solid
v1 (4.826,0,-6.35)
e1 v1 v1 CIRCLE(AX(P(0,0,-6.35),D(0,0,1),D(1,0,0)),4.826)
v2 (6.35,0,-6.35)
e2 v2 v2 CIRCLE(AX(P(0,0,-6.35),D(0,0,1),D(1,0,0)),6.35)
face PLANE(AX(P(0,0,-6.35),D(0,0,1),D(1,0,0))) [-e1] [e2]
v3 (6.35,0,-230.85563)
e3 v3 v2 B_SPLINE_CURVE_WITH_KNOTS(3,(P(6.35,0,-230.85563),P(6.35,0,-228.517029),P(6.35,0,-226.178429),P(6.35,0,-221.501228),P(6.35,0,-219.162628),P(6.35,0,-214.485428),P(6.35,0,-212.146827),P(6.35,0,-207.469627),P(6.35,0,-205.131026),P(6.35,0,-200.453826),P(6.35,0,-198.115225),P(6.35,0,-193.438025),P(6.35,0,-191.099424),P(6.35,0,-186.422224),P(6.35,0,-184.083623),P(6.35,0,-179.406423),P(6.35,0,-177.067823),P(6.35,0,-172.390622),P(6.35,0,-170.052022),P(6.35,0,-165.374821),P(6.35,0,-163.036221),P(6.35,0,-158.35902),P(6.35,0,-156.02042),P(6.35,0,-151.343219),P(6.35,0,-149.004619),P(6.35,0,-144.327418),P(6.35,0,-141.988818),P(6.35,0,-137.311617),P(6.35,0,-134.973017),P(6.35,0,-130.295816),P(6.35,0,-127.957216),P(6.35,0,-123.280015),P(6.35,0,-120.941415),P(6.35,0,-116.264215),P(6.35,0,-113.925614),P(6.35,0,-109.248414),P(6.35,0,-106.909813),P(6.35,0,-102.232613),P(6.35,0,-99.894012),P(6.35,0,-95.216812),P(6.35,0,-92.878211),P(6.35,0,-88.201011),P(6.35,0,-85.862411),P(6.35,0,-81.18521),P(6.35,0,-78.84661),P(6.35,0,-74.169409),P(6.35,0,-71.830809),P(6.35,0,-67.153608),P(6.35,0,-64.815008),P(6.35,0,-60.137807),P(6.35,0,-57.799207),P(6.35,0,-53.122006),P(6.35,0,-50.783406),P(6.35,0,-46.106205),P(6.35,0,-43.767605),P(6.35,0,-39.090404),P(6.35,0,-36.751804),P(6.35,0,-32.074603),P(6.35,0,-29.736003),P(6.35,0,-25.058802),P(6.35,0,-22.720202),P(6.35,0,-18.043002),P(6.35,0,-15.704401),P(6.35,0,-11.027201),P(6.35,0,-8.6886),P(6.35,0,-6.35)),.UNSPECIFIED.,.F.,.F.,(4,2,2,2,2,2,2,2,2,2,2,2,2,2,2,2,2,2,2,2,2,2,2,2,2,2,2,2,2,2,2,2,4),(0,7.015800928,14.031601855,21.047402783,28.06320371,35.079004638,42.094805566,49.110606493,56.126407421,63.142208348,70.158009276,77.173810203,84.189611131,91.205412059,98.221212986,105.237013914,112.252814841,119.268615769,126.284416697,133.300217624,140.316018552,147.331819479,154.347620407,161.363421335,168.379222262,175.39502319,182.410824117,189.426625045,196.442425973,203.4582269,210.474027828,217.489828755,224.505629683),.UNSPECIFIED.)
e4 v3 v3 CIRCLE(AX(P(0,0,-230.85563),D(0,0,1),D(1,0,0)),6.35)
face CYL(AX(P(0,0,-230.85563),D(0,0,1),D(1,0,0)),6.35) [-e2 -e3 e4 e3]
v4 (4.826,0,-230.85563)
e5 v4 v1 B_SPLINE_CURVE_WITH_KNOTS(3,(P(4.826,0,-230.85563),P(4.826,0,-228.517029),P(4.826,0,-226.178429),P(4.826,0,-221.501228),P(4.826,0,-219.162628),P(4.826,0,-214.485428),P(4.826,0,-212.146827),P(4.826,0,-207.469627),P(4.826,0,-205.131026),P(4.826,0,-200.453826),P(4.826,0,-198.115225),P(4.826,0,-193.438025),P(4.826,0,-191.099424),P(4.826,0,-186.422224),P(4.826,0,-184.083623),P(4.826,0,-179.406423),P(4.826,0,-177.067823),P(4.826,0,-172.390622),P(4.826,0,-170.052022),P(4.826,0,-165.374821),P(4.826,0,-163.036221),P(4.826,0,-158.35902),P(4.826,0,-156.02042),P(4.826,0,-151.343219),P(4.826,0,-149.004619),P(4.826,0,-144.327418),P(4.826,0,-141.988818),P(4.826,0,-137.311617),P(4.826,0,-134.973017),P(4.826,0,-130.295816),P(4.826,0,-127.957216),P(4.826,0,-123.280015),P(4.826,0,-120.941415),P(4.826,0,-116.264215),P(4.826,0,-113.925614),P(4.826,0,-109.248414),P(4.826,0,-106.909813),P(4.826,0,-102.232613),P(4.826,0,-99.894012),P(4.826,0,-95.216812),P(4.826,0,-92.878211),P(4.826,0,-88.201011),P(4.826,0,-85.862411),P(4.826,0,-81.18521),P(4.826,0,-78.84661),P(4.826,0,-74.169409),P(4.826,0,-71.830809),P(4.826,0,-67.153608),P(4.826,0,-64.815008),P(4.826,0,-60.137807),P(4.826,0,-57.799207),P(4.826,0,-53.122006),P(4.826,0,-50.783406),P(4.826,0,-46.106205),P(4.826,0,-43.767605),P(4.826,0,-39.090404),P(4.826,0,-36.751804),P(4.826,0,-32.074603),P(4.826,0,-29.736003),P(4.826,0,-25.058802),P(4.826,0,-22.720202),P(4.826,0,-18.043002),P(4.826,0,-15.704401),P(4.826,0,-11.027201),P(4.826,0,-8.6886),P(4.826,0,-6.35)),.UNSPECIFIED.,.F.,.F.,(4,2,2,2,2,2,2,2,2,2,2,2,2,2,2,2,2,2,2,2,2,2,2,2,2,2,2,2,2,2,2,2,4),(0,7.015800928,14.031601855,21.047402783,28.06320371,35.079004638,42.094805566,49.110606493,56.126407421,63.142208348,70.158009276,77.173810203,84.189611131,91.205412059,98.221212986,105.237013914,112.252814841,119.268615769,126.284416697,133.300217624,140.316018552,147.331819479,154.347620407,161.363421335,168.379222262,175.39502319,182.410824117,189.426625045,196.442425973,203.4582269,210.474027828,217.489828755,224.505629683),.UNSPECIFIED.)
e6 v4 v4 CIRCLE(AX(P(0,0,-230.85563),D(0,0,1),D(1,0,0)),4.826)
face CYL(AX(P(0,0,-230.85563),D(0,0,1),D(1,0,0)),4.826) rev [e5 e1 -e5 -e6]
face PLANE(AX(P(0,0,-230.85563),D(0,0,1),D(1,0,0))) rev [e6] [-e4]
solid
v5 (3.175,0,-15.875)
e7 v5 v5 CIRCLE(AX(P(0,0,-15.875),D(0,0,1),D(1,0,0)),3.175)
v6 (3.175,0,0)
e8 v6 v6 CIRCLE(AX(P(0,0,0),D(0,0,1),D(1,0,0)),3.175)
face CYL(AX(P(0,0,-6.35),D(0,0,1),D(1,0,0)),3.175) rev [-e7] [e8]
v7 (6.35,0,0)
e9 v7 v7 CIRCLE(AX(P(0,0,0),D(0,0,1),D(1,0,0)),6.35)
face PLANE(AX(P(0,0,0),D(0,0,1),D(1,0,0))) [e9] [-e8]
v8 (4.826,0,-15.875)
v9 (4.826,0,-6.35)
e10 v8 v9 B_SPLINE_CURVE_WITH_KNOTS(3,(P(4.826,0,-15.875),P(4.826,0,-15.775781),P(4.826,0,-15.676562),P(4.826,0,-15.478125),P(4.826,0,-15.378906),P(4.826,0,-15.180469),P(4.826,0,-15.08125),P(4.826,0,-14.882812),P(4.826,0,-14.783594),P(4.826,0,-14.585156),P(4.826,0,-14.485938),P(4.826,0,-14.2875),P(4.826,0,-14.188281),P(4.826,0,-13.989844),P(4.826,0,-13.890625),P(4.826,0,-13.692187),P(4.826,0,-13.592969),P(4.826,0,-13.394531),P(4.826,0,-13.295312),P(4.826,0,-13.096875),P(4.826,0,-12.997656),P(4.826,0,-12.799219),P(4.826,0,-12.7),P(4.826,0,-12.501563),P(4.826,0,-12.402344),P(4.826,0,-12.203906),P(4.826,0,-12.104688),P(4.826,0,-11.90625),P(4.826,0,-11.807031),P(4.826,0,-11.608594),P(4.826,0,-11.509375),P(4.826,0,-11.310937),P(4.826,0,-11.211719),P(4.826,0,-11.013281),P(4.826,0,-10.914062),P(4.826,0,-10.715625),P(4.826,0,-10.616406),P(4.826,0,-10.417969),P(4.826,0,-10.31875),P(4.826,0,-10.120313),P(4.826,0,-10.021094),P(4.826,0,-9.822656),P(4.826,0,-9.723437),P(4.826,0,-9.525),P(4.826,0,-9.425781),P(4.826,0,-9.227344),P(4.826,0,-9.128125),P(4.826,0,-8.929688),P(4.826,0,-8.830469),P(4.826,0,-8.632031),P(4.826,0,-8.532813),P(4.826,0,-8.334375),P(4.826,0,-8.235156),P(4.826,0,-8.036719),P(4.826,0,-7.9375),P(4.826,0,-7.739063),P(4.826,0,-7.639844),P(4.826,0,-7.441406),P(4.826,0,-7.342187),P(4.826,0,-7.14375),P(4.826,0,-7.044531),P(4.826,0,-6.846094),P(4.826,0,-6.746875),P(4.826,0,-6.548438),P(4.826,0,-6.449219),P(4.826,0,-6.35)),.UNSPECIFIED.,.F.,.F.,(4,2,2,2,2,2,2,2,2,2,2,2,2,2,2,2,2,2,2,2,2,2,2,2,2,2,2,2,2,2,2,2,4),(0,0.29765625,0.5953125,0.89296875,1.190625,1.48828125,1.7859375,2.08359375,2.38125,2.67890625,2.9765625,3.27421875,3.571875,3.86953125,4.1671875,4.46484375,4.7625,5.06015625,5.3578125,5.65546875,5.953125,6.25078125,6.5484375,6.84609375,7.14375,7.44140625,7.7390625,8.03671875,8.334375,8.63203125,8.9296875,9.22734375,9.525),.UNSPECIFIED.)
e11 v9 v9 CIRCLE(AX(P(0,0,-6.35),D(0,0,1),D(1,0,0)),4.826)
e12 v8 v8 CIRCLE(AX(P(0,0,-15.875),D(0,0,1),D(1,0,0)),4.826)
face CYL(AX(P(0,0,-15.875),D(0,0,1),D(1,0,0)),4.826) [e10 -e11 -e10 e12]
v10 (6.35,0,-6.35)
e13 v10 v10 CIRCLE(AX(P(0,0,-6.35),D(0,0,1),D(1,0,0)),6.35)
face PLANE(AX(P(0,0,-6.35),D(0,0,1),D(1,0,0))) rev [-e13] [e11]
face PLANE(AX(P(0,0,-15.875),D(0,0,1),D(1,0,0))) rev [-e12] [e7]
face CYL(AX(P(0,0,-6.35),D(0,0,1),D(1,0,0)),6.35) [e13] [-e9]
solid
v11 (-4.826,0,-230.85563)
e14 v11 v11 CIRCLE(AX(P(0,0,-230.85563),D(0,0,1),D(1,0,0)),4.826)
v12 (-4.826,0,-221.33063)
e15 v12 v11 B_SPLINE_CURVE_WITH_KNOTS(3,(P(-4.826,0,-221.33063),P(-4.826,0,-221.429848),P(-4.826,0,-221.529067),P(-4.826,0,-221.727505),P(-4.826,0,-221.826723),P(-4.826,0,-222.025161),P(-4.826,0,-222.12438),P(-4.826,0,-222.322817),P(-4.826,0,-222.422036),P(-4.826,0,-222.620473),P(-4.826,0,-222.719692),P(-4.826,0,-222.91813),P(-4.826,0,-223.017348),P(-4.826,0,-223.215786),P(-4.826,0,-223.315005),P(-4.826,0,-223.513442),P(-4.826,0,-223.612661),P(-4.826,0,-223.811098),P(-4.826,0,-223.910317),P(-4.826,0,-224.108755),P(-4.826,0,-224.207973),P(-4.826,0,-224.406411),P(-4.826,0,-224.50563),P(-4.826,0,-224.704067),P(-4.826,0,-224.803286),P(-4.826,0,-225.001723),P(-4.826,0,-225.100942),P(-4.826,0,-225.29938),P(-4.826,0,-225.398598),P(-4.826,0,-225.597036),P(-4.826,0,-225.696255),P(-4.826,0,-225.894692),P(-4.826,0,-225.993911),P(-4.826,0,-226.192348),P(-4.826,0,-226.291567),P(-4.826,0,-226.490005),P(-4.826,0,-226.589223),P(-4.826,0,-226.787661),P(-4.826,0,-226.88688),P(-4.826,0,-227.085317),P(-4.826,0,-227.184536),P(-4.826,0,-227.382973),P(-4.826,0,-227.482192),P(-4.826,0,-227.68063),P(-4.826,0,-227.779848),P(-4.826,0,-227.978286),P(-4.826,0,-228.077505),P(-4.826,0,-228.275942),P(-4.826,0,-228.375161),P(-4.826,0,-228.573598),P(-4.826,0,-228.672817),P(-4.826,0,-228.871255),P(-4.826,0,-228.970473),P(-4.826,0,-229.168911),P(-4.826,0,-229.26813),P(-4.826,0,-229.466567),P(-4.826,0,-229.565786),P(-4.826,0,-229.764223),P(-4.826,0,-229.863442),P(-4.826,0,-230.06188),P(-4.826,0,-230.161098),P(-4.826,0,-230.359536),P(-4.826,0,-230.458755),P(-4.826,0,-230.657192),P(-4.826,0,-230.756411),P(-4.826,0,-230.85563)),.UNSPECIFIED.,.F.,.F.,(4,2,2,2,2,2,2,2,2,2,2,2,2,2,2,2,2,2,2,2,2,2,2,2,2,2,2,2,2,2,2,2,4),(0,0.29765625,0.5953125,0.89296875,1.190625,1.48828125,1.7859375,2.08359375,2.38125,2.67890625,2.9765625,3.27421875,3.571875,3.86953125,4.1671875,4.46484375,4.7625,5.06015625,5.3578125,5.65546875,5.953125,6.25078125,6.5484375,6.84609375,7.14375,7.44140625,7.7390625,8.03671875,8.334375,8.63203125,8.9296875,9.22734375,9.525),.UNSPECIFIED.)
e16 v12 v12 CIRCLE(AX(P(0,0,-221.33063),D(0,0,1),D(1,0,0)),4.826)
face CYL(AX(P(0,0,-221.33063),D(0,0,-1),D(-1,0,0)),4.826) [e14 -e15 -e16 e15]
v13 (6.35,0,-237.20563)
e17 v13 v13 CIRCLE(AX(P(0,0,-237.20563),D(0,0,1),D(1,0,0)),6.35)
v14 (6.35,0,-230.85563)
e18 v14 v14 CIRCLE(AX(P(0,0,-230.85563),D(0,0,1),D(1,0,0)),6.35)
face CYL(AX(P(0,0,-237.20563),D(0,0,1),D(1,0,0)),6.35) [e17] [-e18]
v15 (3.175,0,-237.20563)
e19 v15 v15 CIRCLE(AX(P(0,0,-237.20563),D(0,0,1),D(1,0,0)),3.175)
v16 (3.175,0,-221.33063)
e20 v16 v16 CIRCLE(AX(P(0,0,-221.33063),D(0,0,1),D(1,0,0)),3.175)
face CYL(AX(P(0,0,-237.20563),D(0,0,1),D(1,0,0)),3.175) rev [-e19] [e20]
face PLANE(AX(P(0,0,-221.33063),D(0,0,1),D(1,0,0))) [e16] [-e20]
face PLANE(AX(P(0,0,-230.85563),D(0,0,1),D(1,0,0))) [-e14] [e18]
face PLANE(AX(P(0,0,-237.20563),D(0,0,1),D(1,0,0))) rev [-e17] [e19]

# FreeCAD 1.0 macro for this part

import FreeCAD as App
import Part
import Sketcher
Q = App.Units.Quantity

doc = App.newDocument("Part")
body = doc.addObject("PartDesign::Body", "Body")

sketch1 = doc.addObject("Sketcher::SketchObject", "Sketch")
body.addObject(sketch1)
sketch1.AttachmentSupport = (doc.XY_Plane, [""])
sketch1.MapMode = "FlatFace"
sketch1.addGeometry(Part.Circle(App.Vector(0, 0, 0), App.Vector(0, 0, 1), 6.3), False)
sketch1.addGeometry(Part.Circle(App.Vector(0, 0, 0), App.Vector(0, 0, 1), 3.2), False)
sketch1.addConstraint(Sketcher.Constraint("Coincident", 0, 3, -1, 1))
sketch1.addConstraint(Sketcher.Constraint("Coincident", 1, 3, -1, 1))
sketch1.addConstraint(Sketcher.Constraint("Diameter", 0, Q("0.5 in")))
sketch1.addConstraint(Sketcher.Constraint("Diameter", 1, Q("0.25 in")))
pad1 = doc.addObject("PartDesign::Pad", "Pad")
body.addObject(pad1)
pad1.Profile = sketch1
pad1.Length = Q("0.25 in")
pad1.Reversed = True

sketch2 = doc.addObject("Sketcher::SketchObject", "Sketch001")
body.addObject(sketch2)
sketch2.AttachmentSupport = (doc.XY_Plane, [""])
sketch2.MapMode = "FlatFace"
sketch2.AttachmentOffset = App.Placement(App.Vector(0, 0, -0.25 * 25.4), App.Rotation())
sketch2.addGeometry(Part.Circle(App.Vector(0, 0, 0), App.Vector(0, 0, 1), 4.8), False)
sketch2.addGeometry(Part.Circle(App.Vector(0, 0, 0), App.Vector(0, 0, 1), 3.2), False)
sketch2.addConstraint(Sketcher.Constraint("Coincident", 0, 3, -1, 1))
sketch2.addConstraint(Sketcher.Constraint("Coincident", 1, 3, -1, 1))
sketch2.addConstraint(Sketcher.Constraint("Diameter", 0, Q("0.38 in")))
sketch2.addConstraint(Sketcher.Constraint("Diameter", 1, Q("0.25 in")))
pad2 = doc.addObject("PartDesign::Pad", "Pad001")
body.addObject(pad2)
pad2.Profile = sketch2
pad2.Length = Q("0.375 in")
pad2.Reversed = True
body2 = doc.addObject("PartDesign::Body", "Body001")

sketch3 = doc.addObject("Sketcher::SketchObject", "Sketch002")
body2.addObject(sketch3)
sketch3.AttachmentSupport = (doc.getObject("XY_Plane001"), [""])
sketch3.MapMode = "FlatFace"
sketch3.AttachmentOffset = App.Placement(App.Vector(0, 0, -0.25 * 25.4), App.Rotation())
sketch3.addGeometry(Part.Circle(App.Vector(0, 0, 0), App.Vector(0, 0, 1), 6.3), False)
sketch3.addGeometry(Part.Circle(App.Vector(0, 0, 0), App.Vector(0, 0, 1), 4.8), False)
sketch3.addConstraint(Sketcher.Constraint("Coincident", 0, 3, -1, 1))
sketch3.addConstraint(Sketcher.Constraint("Coincident", 1, 3, -1, 1))
sketch3.addConstraint(Sketcher.Constraint("Diameter", 0, Q("0.5 in")))
sketch3.addConstraint(Sketcher.Constraint("Diameter", 1, Q("0.38 in")))
pad3 = doc.addObject("PartDesign::Pad", "Pad002")
body2.addObject(pad3)
pad3.Profile = sketch3
pad3.Length = 224.50563
pad3.Reversed = True
body3 = doc.addObject("PartDesign::Body", "Body002")

sketch4 = doc.addObject("Sketcher::SketchObject", "Sketch003")
body3.addObject(sketch4)
sketch4.AttachmentSupport = (doc.getObject("XY_Plane002"), [""])
sketch4.MapMode = "FlatFace"
sketch4.AttachmentOffset = App.Placement(App.Vector(0, 0, -230.85563), App.Rotation())
sketch4.addGeometry(Part.Circle(App.Vector(0, 0, 0), App.Vector(0, 0, 1), 4.8), False)
sketch4.addGeometry(Part.Circle(App.Vector(0, 0, 0), App.Vector(0, 0, 1), 3.2), False)
sketch4.addConstraint(Sketcher.Constraint("Coincident", 0, 3, -1, 1))
sketch4.addConstraint(Sketcher.Constraint("Coincident", 1, 3, -1, 1))
sketch4.addConstraint(Sketcher.Constraint("Diameter", 0, Q("0.38 in")))
sketch4.addConstraint(Sketcher.Constraint("Diameter", 1, Q("0.25 in")))
pad4 = doc.addObject("PartDesign::Pad", "Pad003")
body3.addObject(pad4)
pad4.Profile = sketch4
pad4.Length = Q("0.375 in")
body4 = doc.addObject("PartDesign::Body", "Body003")

sketch5 = doc.addObject("Sketcher::SketchObject", "Sketch004")
body4.addObject(sketch5)
sketch5.AttachmentSupport = (doc.getObject("XY_Plane003"), [""])
sketch5.MapMode = "FlatFace"
sketch5.AttachmentOffset = App.Placement(App.Vector(0, 0, -230.85563), App.Rotation())
sketch5.addGeometry(Part.Circle(App.Vector(0, 0, 0), App.Vector(0, 0, 1), 6.3), False)
sketch5.addGeometry(Part.Circle(App.Vector(0, 0, 0), App.Vector(0, 0, 1), 3.2), False)
sketch5.addConstraint(Sketcher.Constraint("Coincident", 0, 3, -1, 1))
sketch5.addConstraint(Sketcher.Constraint("Coincident", 1, 3, -1, 1))
sketch5.addConstraint(Sketcher.Constraint("Diameter", 0, Q("0.5 in")))
sketch5.addConstraint(Sketcher.Constraint("Diameter", 1, Q("0.25 in")))
pad5 = doc.addObject("PartDesign::Pad", "Pad004")
body4.addObject(pad5)
pad5.Profile = sketch5
pad5.Length = Q("0.25 in")
pad5.Reversed = True
doc.recompute()

boolean = doc.addObject("PartDesign::Boolean", "Boolean")
body4.addObject(boolean)
boolean.Type = "Fuse"
boolean.addObjects([body3])

doc.recompute()
